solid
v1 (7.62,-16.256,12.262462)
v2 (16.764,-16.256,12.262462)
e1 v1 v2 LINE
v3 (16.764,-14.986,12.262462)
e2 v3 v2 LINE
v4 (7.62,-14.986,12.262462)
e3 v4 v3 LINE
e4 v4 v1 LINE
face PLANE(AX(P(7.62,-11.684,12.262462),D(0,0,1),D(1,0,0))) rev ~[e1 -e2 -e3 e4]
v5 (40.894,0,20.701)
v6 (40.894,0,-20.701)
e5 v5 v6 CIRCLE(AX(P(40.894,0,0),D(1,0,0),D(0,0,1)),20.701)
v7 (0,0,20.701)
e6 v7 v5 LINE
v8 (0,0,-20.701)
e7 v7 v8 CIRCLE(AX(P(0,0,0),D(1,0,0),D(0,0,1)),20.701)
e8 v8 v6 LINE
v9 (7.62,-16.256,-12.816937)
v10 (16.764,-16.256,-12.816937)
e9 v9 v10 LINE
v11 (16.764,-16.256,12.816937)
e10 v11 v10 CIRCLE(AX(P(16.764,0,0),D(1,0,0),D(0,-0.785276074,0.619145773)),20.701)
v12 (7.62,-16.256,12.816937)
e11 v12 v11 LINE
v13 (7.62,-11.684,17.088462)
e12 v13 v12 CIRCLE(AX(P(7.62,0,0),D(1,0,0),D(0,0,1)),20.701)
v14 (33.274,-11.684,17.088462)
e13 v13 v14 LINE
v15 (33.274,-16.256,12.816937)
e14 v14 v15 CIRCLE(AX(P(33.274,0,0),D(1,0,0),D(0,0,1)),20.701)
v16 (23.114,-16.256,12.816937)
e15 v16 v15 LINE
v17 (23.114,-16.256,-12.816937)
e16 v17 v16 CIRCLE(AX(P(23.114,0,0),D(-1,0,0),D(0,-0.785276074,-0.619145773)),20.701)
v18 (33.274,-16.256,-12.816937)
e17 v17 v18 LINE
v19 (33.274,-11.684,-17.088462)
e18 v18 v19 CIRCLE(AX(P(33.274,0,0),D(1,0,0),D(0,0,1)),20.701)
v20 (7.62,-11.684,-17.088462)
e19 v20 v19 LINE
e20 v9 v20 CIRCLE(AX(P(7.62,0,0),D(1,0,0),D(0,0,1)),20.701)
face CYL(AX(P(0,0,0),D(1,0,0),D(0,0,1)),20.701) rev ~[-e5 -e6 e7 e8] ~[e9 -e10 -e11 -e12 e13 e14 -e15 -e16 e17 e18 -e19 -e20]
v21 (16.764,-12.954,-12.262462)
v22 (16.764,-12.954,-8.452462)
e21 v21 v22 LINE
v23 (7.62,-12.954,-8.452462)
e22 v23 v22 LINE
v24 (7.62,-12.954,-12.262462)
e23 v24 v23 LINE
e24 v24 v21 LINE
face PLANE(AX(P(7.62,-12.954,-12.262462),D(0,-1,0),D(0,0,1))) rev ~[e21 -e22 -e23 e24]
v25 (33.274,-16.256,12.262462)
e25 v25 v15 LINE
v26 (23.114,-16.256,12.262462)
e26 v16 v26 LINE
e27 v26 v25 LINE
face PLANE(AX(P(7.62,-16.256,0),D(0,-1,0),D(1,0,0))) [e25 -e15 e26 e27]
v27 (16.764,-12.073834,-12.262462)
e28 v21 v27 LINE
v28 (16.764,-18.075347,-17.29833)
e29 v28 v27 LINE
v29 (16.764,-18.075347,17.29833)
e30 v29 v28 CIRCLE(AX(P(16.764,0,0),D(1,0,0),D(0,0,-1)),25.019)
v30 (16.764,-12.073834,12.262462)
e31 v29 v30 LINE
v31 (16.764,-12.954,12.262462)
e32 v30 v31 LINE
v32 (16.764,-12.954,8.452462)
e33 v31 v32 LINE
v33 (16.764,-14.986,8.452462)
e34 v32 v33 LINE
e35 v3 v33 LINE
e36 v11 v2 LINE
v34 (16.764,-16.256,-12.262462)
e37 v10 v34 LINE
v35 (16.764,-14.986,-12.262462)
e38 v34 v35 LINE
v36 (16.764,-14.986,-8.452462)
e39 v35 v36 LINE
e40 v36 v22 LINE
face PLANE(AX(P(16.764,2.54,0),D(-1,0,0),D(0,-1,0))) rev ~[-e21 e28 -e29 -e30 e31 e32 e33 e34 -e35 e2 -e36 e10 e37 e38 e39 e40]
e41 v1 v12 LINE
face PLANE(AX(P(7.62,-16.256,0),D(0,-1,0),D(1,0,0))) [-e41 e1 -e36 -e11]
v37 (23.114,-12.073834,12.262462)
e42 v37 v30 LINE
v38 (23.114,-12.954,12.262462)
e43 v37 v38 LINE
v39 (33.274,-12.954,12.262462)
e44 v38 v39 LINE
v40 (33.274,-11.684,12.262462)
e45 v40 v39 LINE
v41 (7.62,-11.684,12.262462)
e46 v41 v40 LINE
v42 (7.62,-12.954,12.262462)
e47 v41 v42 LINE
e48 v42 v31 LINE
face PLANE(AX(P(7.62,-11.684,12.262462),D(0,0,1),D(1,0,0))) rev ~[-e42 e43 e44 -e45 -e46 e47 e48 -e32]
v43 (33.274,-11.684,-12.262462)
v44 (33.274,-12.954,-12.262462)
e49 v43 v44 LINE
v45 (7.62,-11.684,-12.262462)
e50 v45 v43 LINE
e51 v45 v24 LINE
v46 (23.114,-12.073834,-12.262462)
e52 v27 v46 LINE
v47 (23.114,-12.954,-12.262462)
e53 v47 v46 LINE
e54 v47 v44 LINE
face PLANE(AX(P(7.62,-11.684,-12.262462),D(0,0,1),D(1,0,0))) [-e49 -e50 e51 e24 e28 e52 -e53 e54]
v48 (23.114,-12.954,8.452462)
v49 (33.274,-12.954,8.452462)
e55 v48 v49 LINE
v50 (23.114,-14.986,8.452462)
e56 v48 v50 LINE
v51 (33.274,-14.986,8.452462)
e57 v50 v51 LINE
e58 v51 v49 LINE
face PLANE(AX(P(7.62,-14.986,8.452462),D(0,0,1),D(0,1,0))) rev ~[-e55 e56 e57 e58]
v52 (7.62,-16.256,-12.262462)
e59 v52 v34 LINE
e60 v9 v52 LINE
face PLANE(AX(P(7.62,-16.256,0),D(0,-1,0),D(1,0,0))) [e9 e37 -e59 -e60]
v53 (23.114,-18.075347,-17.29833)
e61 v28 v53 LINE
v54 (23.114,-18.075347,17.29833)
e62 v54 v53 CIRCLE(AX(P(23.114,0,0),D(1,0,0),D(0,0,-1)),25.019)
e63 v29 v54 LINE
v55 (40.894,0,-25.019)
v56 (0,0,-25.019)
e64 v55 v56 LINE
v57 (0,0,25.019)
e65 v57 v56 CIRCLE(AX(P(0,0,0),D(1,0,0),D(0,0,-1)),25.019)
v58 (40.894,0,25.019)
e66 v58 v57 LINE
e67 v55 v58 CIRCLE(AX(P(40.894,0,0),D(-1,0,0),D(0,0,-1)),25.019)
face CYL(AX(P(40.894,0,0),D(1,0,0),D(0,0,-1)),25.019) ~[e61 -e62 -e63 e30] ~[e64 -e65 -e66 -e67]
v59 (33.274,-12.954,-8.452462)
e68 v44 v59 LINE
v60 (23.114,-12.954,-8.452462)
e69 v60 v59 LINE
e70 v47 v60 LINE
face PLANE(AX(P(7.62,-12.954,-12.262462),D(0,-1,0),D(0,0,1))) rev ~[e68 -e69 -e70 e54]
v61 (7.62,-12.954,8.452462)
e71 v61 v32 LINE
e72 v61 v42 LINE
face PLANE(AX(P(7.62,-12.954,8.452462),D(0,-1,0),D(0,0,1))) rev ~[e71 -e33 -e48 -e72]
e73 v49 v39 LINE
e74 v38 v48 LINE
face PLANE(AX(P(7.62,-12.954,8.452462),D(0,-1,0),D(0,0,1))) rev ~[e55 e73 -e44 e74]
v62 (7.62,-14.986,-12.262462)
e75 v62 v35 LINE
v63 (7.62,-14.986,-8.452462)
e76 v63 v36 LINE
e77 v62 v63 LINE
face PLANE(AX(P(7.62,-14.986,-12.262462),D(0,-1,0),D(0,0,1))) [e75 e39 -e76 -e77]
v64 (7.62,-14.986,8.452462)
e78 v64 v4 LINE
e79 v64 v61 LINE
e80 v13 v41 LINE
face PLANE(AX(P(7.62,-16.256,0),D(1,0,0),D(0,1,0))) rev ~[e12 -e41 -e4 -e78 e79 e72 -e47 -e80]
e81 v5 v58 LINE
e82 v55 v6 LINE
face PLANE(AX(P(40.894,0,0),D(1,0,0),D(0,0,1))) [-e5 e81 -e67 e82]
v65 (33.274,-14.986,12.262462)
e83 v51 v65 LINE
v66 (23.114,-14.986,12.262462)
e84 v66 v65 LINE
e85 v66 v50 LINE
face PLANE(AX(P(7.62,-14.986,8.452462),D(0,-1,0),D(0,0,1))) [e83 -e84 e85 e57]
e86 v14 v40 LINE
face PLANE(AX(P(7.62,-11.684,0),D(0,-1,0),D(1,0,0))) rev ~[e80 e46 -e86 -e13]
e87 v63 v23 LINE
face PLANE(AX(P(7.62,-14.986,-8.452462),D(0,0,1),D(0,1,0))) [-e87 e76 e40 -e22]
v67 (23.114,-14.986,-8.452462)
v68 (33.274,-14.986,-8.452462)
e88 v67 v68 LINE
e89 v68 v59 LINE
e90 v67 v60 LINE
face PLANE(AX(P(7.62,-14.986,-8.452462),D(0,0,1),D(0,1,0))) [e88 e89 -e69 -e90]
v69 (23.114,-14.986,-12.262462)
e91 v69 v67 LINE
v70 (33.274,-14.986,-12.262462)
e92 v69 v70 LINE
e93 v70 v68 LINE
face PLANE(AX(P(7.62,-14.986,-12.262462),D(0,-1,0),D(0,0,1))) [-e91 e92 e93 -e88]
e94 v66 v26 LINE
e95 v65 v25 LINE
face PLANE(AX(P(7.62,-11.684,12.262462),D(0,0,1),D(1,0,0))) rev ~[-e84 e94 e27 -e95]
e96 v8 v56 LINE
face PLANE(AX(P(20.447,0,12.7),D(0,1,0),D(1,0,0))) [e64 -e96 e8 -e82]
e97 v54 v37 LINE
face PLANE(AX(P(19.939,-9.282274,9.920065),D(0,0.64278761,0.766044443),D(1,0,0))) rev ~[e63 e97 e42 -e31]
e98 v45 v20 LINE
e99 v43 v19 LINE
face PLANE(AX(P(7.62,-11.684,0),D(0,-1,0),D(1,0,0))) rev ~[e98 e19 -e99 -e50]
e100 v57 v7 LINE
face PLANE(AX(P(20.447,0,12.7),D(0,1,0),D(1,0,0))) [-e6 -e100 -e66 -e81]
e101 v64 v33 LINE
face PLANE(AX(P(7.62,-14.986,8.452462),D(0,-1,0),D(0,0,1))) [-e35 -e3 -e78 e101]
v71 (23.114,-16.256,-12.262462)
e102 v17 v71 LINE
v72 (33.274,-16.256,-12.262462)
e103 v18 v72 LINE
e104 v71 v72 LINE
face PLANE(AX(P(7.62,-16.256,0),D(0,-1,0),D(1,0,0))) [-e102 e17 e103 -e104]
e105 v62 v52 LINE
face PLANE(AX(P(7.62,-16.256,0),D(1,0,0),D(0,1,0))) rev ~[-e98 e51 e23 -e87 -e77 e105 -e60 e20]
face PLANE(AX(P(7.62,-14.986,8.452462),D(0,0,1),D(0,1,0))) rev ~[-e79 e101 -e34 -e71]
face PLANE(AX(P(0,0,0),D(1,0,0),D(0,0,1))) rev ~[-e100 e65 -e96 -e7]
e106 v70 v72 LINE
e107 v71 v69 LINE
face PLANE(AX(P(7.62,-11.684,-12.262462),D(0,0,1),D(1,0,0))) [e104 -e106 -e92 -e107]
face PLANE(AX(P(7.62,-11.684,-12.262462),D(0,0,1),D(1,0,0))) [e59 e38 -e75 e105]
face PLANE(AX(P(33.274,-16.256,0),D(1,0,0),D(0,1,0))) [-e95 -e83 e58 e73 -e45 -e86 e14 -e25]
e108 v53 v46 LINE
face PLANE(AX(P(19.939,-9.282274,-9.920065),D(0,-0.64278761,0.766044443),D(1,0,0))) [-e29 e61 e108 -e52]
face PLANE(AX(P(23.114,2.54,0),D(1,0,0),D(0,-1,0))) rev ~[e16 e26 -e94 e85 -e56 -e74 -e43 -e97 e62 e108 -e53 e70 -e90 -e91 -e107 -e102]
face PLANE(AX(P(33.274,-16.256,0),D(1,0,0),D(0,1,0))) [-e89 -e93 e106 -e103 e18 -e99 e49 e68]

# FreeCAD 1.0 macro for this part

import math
import FreeCAD as App
import Part
import Sketcher

V = App.Vector
Q = App.Units.Quantity

doc = App.newDocument("Part")
body = doc.addObject("PartDesign::Body", "Body")

# Sketch on XZ plane
sketch1 = body.newObject("Sketcher::SketchObject", "Sketch")
sketch1.AttachmentSupport = (doc.getObject("XZ_Plane"), [""])
sketch1.MapMode = "FlatFace"
sketch1.addGeometry([
    Part.LineSegment(V(0, 0, 0), V(0, 25, 0)),
    Part.LineSegment(V(0, 25, 0), V(41, 25, 0)),
    Part.LineSegment(V(41, 25, 0), V(41, 0, 0)),
    Part.LineSegment(V(41, 0, 0), V(0, 0, 0)),
], False)
sketch1.addConstraint([
    Sketcher.Constraint("Coincident", 0, 2, 1, 1),
    Sketcher.Constraint("Coincident", 1, 2, 2, 1),
    Sketcher.Constraint("Coincident", 2, 2, 3, 1),
    Sketcher.Constraint("Coincident", 3, 2, 0, 1),
    Sketcher.Constraint("Vertical", 0),
    Sketcher.Constraint("Horizontal", 1),
    Sketcher.Constraint("Vertical", 2),
    Sketcher.Constraint("Horizontal", 3),
    Sketcher.Constraint("Coincident", 3, 2, -1, 1),
    Sketcher.Constraint("DistanceY", 0, 1, 0, 2, Q("1 in")),
    Sketcher.Constraint("DistanceX", 1, 1, 1, 2, Q("1.61 in")),
])
revolution = body.newObject("PartDesign::Revolution", "Revolution")
revolution.Profile = sketch1
revolution.ReferenceAxis = (sketch1, ["H_Axis"])
revolution.Angle = 180

# Sketch on XZ plane
sketch2 = body.newObject("Sketcher::SketchObject", "Sketch001")
sketch2.AttachmentSupport = (doc.getObject("XZ_Plane"), [""])
sketch2.MapMode = "FlatFace"
sketch2.addGeometry([
    Part.LineSegment(V(41, 0, 0), V(0, 0, 0)),
    Part.LineSegment(V(0, 0, 0), V(0, 21, 0)),
    Part.LineSegment(V(0, 21, 0), V(41, 21, 0)),
    Part.LineSegment(V(41, 21, 0), V(41, 0, 0)),
], False)
sketch2.addConstraint([
    Sketcher.Constraint("Coincident", 0, 2, 1, 1),
    Sketcher.Constraint("Coincident", 1, 2, 2, 1),
    Sketcher.Constraint("Coincident", 2, 2, 3, 1),
    Sketcher.Constraint("Coincident", 3, 2, 0, 1),
    Sketcher.Constraint("Horizontal", 0),
    Sketcher.Constraint("Vertical", 1),
    Sketcher.Constraint("Horizontal", 2),
    Sketcher.Constraint("Vertical", 3),
    Sketcher.Constraint("Coincident", 0, 2, -1, 1),
    Sketcher.Constraint("DistanceX", 0, 2, 0, 1, Q("1.63 in")),
    Sketcher.Constraint("DistanceY", 1, 1, 1, 2, Q("0.815 in")),
])
groove = body.newObject("PartDesign::Groove", "Groove")
groove.Profile = sketch2
groove.ReferenceAxis = (sketch2, ["H_Axis"])
groove.Angle = 360

# Sketch on XY plane
sketch3 = body.newObject("Sketcher::SketchObject", "Sketch002")
sketch3.AttachmentSupport = (doc.getObject("XY_Plane"), [""])
sketch3.MapMode = "FlatFace"
sketch3.addGeometry([
    Part.LineSegment(V(7.6, -11.7, 0), V(7.6, -16.3, 0)),
    Part.LineSegment(V(7.6, -16.3, 0), V(33.3, -16.3, 0)),
    Part.LineSegment(V(33.3, -16.3, 0), V(33.3, -11.7, 0)),
    Part.LineSegment(V(33.3, -11.7, 0), V(7.6, -11.7, 0)),
], False)
sketch3.addConstraint([
    Sketcher.Constraint("Coincident", 0, 2, 1, 1),
    Sketcher.Constraint("Coincident", 1, 2, 2, 1),
    Sketcher.Constraint("Coincident", 2, 2, 3, 1),
    Sketcher.Constraint("Coincident", 3, 2, 0, 1),
    Sketcher.Constraint("Vertical", 0),
    Sketcher.Constraint("Horizontal", 1),
    Sketcher.Constraint("Vertical", 2),
    Sketcher.Constraint("Horizontal", 3),
    Sketcher.Constraint("DistanceX", 1, 1, 1, 2, Q("1.01 in")),
    Sketcher.Constraint("DistanceY", 0, 2, 0, 1, Q("0.18 in")),
    Sketcher.Constraint("DistanceX", -1, 1, 0, 2, Q("0.3 in")),
    Sketcher.Constraint("DistanceY", 0, 2, -1, 1, Q("0.64 in")),
])
pad1 = body.newObject("PartDesign::Pad", "Pad")
pad1.Profile = sketch3
pad1.Type = "UpToFirst"

# Sketch on XY plane
sketch4 = body.newObject("Sketcher::SketchObject", "Sketch003")
sketch4.AttachmentSupport = (doc.getObject("XY_Plane"), [""])
sketch4.MapMode = "FlatFace"
sketch4.addGeometry([
    Part.LineSegment(V(7.6, -11.7, 0), V(7.6, -16.3, 0)),
    Part.LineSegment(V(7.6, -16.3, 0), V(33.3, -16.3, 0)),
    Part.LineSegment(V(33.3, -16.3, 0), V(33.3, -11.7, 0)),
    Part.LineSegment(V(33.3, -11.7, 0), V(7.6, -11.7, 0)),
], False)
sketch4.addConstraint([
    Sketcher.Constraint("Coincident", 0, 2, 1, 1),
    Sketcher.Constraint("Coincident", 1, 2, 2, 1),
    Sketcher.Constraint("Coincident", 2, 2, 3, 1),
    Sketcher.Constraint("Coincident", 3, 2, 0, 1),
    Sketcher.Constraint("Vertical", 0),
    Sketcher.Constraint("Horizontal", 1),
    Sketcher.Constraint("Vertical", 2),
    Sketcher.Constraint("Horizontal", 3),
    Sketcher.Constraint("DistanceX", 1, 1, 1, 2, Q("1.01 in")),
    Sketcher.Constraint("DistanceY", 0, 2, 0, 1, Q("0.18 in")),
    Sketcher.Constraint("DistanceX", -1, 1, 0, 2, Q("0.3 in")),
    Sketcher.Constraint("DistanceY", 0, 2, -1, 1, Q("0.64 in")),
])
pad2 = body.newObject("PartDesign::Pad", "Pad001")
pad2.Profile = sketch4
pad2.Type = "UpToFirst"
pad2.Reversed = True

# Sketch on XZ plane
sketch5 = body.newObject("Sketcher::SketchObject", "Sketch004")
sketch5.AttachmentSupport = (doc.getObject("XZ_Plane"), [""])
sketch5.MapMode = "FlatFace"
sketch5.AttachmentOffset = App.Placement(V(0, 0, 0.46 * 25.4), App.Rotation())
sketch5.addGeometry([
    Part.LineSegment(V(8, -12, 0), V(8, 12, 0)),
    Part.LineSegment(V(8, 12, 0), V(33, 12, 0)),
    Part.LineSegment(V(33, 12, 0), V(33, -12, 0)),
    Part.LineSegment(V(33, -12, 0), V(8, -12, 0)),
], False)
sketch5.addConstraint([
    Sketcher.Constraint("Coincident", 0, 2, 1, 1),
    Sketcher.Constraint("Coincident", 1, 2, 2, 1),
    Sketcher.Constraint("Coincident", 2, 2, 3, 1),
    Sketcher.Constraint("Coincident", 3, 2, 0, 1),
    Sketcher.Constraint("Vertical", 0),
    Sketcher.Constraint("Horizontal", 1),
    Sketcher.Constraint("Vertical", 2),
    Sketcher.Constraint("Horizontal", 3),
    Sketcher.Constraint("DistanceX", 1, 1, 1, 2, Q("1.01 in")),
    Sketcher.Constraint("DistanceX", -1, 1, 0, 2, Q("0.3 in")),
    Sketcher.Constraint("DistanceY", 0, 1, 0, 2, Q("24.524925 mm")),
    Sketcher.Constraint("DistanceY", -1, 1, 0, 2, Q("12.262462 mm")),
])
pocket1 = body.newObject("PartDesign::Pocket", "Pocket")
pocket1.Profile = sketch5
pocket1.Length = Q("0.18 in")
pocket1.Reversed = True

# Sketch on YZ plane
sketch6 = body.newObject("Sketcher::SketchObject", "Sketch005")
sketch6.AttachmentSupport = (doc.getObject("YZ_Plane"), [""])
sketch6.MapMode = "FlatFace"
sketch6.AttachmentOffset = App.Placement(V(0, 0, 0.3 * 25.4), App.Rotation())
sketch6.addGeometry([
    Part.LineSegment(V(-13, -12.3, 0), V(-15, -12.3, 0)),  # 0
    Part.LineSegment(V(-15, -12.3, 0), V(-15, -8.5, 0)),  # 1
    Part.LineSegment(V(-15, -8.5, 0), V(-13, -8.5, 0)),  # 2
    Part.LineSegment(V(-13, -8.5, 0), V(-13, -12.3, 0)),  # 3
    Part.LineSegment(V(-13, 8.5, 0), V(-15, 8.5, 0)),  # 4
    Part.LineSegment(V(-15, 8.5, 0), V(-15, 12.3, 0)),  # 5
    Part.LineSegment(V(-15, 12.3, 0), V(-13, 12.3, 0)),  # 6
    Part.LineSegment(V(-13, 12.3, 0), V(-13, 8.5, 0)),  # 7
], False)
sketch6.addConstraint([
    Sketcher.Constraint("Coincident", 0, 2, 1, 1),
    Sketcher.Constraint("Coincident", 1, 2, 2, 1),
    Sketcher.Constraint("Coincident", 2, 2, 3, 1),
    Sketcher.Constraint("Coincident", 3, 2, 0, 1),
    Sketcher.Constraint("Coincident", 4, 2, 5, 1),
    Sketcher.Constraint("Coincident", 5, 2, 6, 1),
    Sketcher.Constraint("Coincident", 6, 2, 7, 1),
    Sketcher.Constraint("Coincident", 7, 2, 4, 1),
    Sketcher.Constraint("Horizontal", 0),
    Sketcher.Constraint("Vertical", 1),
    Sketcher.Constraint("Horizontal", 2),
    Sketcher.Constraint("Vertical", 3),
    Sketcher.Constraint("Horizontal", 4),
    Sketcher.Constraint("Vertical", 5),
    Sketcher.Constraint("Horizontal", 6),
    Sketcher.Constraint("Vertical", 7),
    Sketcher.Constraint("Symmetric", 1, 2, 4, 2, -1),
    Sketcher.Constraint("Symmetric", 3, 2, 6, 2, -1),
    Sketcher.Constraint("DistanceX", 0, 2, 0, 1, Q("0.08 in")),
    Sketcher.Constraint("DistanceY", 1, 1, 1, 2, Q("0.15 in")),
    Sketcher.Constraint("DistanceX", 0, 2, -1, 1, Q("0.59 in")),
    Sketcher.Constraint("DistanceY", 0, 2, -1, 1, Q("12.262462 mm")),
])
pad3 = body.newObject("PartDesign::Pad", "Pad002")
pad3.Profile = sketch6
pad3.Length = Q("1.01 in")

# Sketch on XY plane
sketch7 = body.newObject("Sketcher::SketchObject", "Sketch006")
sketch7.AttachmentSupport = (doc.getObject("XY_Plane"), [""])
sketch7.MapMode = "FlatFace"
sketch7.addGeometry([
    Part.LineSegment(V(17, 3, 0), V(17, -28, 0)),
    Part.LineSegment(V(17, -28, 0), V(23, -28, 0)),
    Part.LineSegment(V(23, -28, 0), V(23, 3, 0)),
    Part.LineSegment(V(23, 3, 0), V(17, 3, 0)),
], False)
sketch7.addGeometry(Part.LineSegment(V(23, 3, 0), V(17, 3, 0)), True)  # axis
sketch7.addConstraint([
    Sketcher.Constraint("Coincident", 0, 2, 1, 1),
    Sketcher.Constraint("Coincident", 1, 2, 2, 1),
    Sketcher.Constraint("Coincident", 2, 2, 3, 1),
    Sketcher.Constraint("Coincident", 3, 2, 0, 1),
    Sketcher.Constraint("Vertical", 0),
    Sketcher.Constraint("Horizontal", 1),
    Sketcher.Constraint("Vertical", 2),
    Sketcher.Constraint("Horizontal", 3),
    Sketcher.Constraint("Horizontal", 4),
    Sketcher.Constraint("Coincident", 4, 1, 2, 2),
    Sketcher.Constraint("Vertical", 0, 2, 4, 2),
    Sketcher.Constraint("DistanceX", 1, 1, 1, 2, Q("0.25 in")),
    Sketcher.Constraint("DistanceY", -1, 1, 2, 2, Q("0.1 in")),
    Sketcher.Constraint("DistanceX", -1, 1, 0, 2, Q("0.66 in")),
    Sketcher.Constraint("DistanceY", 0, 2, 0, 1, Q("30.865765 mm")),
])
groove2 = body.newObject("PartDesign::Groove", "Groove001")
groove2.Profile = sketch7
groove2.ReferenceAxis = (sketch7, ["Axis0"])
groove2.Angle = 40

# Sketch on XY plane
sketch8 = body.newObject("Sketcher::SketchObject", "Sketch007")
sketch8.AttachmentSupport = (doc.getObject("XY_Plane"), [""])
sketch8.MapMode = "FlatFace"
sketch8.addGeometry([
    Part.LineSegment(V(17, 3, 0), V(17, -28, 0)),
    Part.LineSegment(V(17, -28, 0), V(23, -28, 0)),
    Part.LineSegment(V(23, -28, 0), V(23, 3, 0)),
    Part.LineSegment(V(23, 3, 0), V(17, 3, 0)),
], False)
sketch8.addGeometry(Part.LineSegment(V(17, 3, 0), V(23, 3, 0)), True)  # axis
sketch8.addConstraint([
    Sketcher.Constraint("Coincident", 0, 2, 1, 1),
    Sketcher.Constraint("Coincident", 1, 2, 2, 1),
    Sketcher.Constraint("Coincident", 2, 2, 3, 1),
    Sketcher.Constraint("Coincident", 3, 2, 0, 1),
    Sketcher.Constraint("Vertical", 0),
    Sketcher.Constraint("Horizontal", 1),
    Sketcher.Constraint("Vertical", 2),
    Sketcher.Constraint("Horizontal", 3),
    Sketcher.Constraint("Horizontal", 4),
    Sketcher.Constraint("Coincident", 4, 1, 3, 2),
    Sketcher.Constraint("Vertical", 1, 2, 4, 2),
    Sketcher.Constraint("DistanceX", 1, 1, 1, 2, Q("0.25 in")),
    Sketcher.Constraint("DistanceY", -1, 1, 2, 2, Q("0.1 in")),
    Sketcher.Constraint("DistanceX", -1, 1, 0, 2, Q("0.66 in")),
    Sketcher.Constraint("DistanceY", 0, 2, 0, 1, Q("30.865765 mm")),
])
groove3 = body.newObject("PartDesign::Groove", "Groove002")
groove3.Profile = sketch8
groove3.ReferenceAxis = (sketch8, ["Axis0"])
groove3.Angle = 40

# Sketch on YZ plane
sketch9 = body.newObject("Sketcher::SketchObject", "Sketch008")
sketch9.AttachmentSupport = (doc.getObject("YZ_Plane"), [""])
sketch9.MapMode = "FlatFace"
sketch9.AttachmentOffset = App.Placement(V(0, 0, 1.61 * 25.4), App.Rotation())
sketch9.addGeometry([
    Part.ArcOfCircle(Part.Circle(V(0, 0, 0), V(0, 0, 1), 25.02), math.radians(90), math.radians(270)),
    Part.LineSegment(V(0, 25.02, 0), V(0, 25.4, 0)),
    Part.ArcOfCircle(Part.Circle(V(0, 0, 0), V(0, 0, 1), 25.4), math.radians(90), math.radians(270)),
    Part.LineSegment(V(0, -25.4, 0), V(0, -25.02, 0)),
], False)
sketch9.addConstraint([
    Sketcher.Constraint("Coincident", 0, 1, 1, 1),
    Sketcher.Constraint("Coincident", 1, 2, 2, 1),
    Sketcher.Constraint("Coincident", 2, 2, 3, 1),
    Sketcher.Constraint("Coincident", 3, 2, 0, 2),
    Sketcher.Constraint("Vertical", 1),
    Sketcher.Constraint("Vertical", 3),
    Sketcher.Constraint("Coincident", 0, 3, -1, 1),
    Sketcher.Constraint("Coincident", 2, 3, -1, 1),
    Sketcher.Constraint("PointOnObject", 0, 1, -2),
    Sketcher.Constraint("PointOnObject", 2, 2, -2),
    Sketcher.Constraint("Radius", 2, Q("1 in")),
    Sketcher.Constraint("Radius", 0, Q("0.985 in")),
])
pocket2 = body.newObject("PartDesign::Pocket", "Pocket001")
pocket2.Profile = sketch9
pocket2.Length = Q("1.8 in")

doc.recompute()
